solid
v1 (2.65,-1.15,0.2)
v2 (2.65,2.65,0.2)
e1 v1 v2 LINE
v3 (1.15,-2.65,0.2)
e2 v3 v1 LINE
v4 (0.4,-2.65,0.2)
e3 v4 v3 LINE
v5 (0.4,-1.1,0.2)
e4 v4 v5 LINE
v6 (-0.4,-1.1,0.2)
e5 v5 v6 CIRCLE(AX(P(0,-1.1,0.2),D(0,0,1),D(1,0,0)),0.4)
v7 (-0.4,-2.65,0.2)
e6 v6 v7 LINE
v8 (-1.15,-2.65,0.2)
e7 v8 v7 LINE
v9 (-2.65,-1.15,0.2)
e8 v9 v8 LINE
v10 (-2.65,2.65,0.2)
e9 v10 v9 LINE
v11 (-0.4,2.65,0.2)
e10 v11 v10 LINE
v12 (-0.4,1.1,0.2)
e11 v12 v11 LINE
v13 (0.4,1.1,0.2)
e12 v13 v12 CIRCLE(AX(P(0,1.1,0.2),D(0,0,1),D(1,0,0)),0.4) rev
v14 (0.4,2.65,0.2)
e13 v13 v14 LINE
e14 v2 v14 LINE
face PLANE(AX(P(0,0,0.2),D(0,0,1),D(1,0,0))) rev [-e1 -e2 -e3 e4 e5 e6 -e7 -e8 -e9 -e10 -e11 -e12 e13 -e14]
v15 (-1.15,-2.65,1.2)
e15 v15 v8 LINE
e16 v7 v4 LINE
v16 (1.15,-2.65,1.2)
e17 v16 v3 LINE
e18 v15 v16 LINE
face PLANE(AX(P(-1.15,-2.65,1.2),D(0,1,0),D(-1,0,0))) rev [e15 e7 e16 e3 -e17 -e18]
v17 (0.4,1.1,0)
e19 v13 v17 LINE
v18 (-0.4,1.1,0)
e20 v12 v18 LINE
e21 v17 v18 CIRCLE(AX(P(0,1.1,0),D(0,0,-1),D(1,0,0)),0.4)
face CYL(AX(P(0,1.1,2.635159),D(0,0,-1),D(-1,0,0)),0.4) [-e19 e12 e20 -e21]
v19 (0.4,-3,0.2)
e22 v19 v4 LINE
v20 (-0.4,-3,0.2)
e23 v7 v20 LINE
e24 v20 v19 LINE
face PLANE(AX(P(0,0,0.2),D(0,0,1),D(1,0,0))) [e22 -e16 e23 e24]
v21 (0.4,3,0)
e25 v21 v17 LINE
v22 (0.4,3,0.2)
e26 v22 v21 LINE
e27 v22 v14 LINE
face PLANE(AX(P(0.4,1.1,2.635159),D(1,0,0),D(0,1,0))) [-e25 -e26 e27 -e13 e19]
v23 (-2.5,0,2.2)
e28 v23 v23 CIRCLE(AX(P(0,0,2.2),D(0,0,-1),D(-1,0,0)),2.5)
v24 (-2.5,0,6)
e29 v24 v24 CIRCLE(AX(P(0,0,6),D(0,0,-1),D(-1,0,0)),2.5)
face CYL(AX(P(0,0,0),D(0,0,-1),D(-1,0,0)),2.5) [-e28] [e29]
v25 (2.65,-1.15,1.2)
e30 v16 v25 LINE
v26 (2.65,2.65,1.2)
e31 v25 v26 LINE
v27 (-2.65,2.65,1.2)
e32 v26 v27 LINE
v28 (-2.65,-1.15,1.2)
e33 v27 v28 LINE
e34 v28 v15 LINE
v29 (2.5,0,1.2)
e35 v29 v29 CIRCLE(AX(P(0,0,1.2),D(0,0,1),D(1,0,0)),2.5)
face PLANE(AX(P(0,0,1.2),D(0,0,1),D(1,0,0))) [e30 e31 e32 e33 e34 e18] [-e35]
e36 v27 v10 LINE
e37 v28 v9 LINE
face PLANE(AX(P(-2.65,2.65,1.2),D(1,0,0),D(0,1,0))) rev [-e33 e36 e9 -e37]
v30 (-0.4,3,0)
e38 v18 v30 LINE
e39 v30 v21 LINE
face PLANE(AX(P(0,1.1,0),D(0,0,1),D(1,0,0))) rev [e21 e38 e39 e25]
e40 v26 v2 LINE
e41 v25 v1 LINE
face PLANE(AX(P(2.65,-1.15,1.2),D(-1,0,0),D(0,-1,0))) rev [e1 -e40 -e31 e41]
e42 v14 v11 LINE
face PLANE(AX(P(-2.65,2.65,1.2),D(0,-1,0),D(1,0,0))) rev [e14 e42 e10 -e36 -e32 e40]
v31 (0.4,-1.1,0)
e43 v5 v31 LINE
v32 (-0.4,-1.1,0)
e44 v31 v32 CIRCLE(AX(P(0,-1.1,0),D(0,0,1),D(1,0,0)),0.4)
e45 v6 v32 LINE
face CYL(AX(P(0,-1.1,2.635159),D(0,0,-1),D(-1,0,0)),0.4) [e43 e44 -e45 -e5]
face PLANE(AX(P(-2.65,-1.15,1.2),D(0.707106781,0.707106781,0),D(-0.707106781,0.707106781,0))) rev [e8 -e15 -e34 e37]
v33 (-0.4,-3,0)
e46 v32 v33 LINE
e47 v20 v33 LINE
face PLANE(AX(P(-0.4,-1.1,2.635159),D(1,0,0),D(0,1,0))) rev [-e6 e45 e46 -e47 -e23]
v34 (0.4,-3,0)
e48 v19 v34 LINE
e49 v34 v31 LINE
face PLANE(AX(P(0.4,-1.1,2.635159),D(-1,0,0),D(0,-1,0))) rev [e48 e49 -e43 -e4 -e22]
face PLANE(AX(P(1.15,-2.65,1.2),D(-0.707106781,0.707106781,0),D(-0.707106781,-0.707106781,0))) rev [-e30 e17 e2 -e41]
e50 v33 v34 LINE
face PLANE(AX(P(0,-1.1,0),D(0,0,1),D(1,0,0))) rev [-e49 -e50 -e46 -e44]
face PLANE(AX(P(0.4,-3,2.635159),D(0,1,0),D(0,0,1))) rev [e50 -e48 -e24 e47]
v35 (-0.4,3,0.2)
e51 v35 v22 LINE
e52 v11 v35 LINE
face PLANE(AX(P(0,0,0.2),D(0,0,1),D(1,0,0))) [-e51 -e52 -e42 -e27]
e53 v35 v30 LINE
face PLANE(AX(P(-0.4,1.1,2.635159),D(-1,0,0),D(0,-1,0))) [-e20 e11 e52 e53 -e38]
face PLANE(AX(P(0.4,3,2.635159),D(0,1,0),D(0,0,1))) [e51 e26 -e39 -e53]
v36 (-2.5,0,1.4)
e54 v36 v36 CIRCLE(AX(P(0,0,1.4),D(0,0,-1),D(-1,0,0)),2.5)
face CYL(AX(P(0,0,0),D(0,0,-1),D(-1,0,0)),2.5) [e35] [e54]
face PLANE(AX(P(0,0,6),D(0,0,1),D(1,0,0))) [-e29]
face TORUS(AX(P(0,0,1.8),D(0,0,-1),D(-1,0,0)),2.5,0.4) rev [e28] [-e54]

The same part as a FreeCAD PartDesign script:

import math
import FreeCAD as App
import Part
import Sketcher
from FreeCAD import Vector
Q = App.Units.Quantity

doc = App.newDocument("Part")
body = doc.addObject("PartDesign::Body", "Body")

sketch1 = body.newObject("Sketcher::SketchObject", "Sketch")
sketch1.AttachmentSupport = (doc.getObject("XY_Plane"), [""])
sketch1.MapMode = "FlatFace"
sketch1.AttachmentOffset = App.Placement(Vector(0, 0, 0.2), App.Rotation())
sketch1.addGeometry(Part.LineSegment(Vector(2.65, 2.65, 0), Vector(-2.65, 2.65, 0)), False)
sketch1.addGeometry(Part.LineSegment(Vector(-2.65, 2.65, 0), Vector(-2.65, -1.15, 0)), False)
sketch1.addGeometry(Part.LineSegment(Vector(-2.65, -1.15, 0), Vector(-1.15, -2.65, 0)), False)
sketch1.addGeometry(Part.LineSegment(Vector(-1.15, -2.65, 0), Vector(1.15, -2.65, 0)), False)
sketch1.addGeometry(Part.LineSegment(Vector(1.15, -2.65, 0), Vector(2.65, -1.15, 0)), False)
sketch1.addGeometry(Part.LineSegment(Vector(2.65, -1.15, 0), Vector(2.65, 2.65, 0)), False)
sketch1.addConstraint(Sketcher.Constraint("Coincident", 0, 2, 1, 1))
sketch1.addConstraint(Sketcher.Constraint("Coincident", 1, 2, 2, 1))
sketch1.addConstraint(Sketcher.Constraint("Coincident", 2, 2, 3, 1))
sketch1.addConstraint(Sketcher.Constraint("Coincident", 3, 2, 4, 1))
sketch1.addConstraint(Sketcher.Constraint("Coincident", 4, 2, 5, 1))
sketch1.addConstraint(Sketcher.Constraint("Coincident", 5, 2, 0, 1))
sketch1.addConstraint(Sketcher.Constraint("Horizontal", 0))
sketch1.addConstraint(Sketcher.Constraint("Vertical", 1))
sketch1.addConstraint(Sketcher.Constraint("Horizontal", 3))
sketch1.addConstraint(Sketcher.Constraint("Vertical", 5))
sketch1.addConstraint(Sketcher.Constraint("Symmetric", 1, 2, 4, 2, -2))
sketch1.addConstraint(Sketcher.Constraint("Perpendicular", 2, 4))
sketch1.addConstraint(Sketcher.Constraint("Equal", 2, 4))
sketch1.addConstraint(Sketcher.Constraint("DistanceX", 0, 2, 0, 1, Q("5.3 mm")))
sketch1.addConstraint(Sketcher.Constraint("DistanceX", 3, 1, 3, 2, Q("2.3 mm")))
sketch1.addConstraint(Sketcher.Constraint("DistanceY", 1, 2, 1, 1, Q("3.8 mm")))
sketch1.addConstraint(Sketcher.Constraint("DistanceY", -1, 1, 0, 2, Q("2.65 mm")))
pad1 = body.newObject("PartDesign::Pad", "Pad")
pad1.Profile = sketch1
pad1.Length = 1

sketch2 = body.newObject("Sketcher::SketchObject", "Sketch001")
sketch2.AttachmentSupport = (doc.getObject("YZ_Plane"), [""])
sketch2.MapMode = "FlatFace"
sketch2.addGeometry(Part.LineSegment(Vector(2.5, 6, 0), Vector(0, 6, 0)), False)
sketch2.addGeometry(Part.LineSegment(Vector(0, 6, 0), Vector(0, 1.2, 0)), False)
sketch2.addGeometry(Part.LineSegment(Vector(0, 1.2, 0), Vector(2.5, 1.2, 0)), False)
sketch2.addGeometry(Part.LineSegment(Vector(2.5, 1.2, 0), Vector(2.5, 1.4, 0)), False)
sketch2.addGeometry(Part.ArcOfCircle(Part.Circle(Vector(2.5, 1.8, 0), Vector(0, 0, 1), 0.4), math.radians(90), math.radians(270)), False)
sketch2.addGeometry(Part.LineSegment(Vector(2.5, 2.2, 0), Vector(2.5, 6, 0)), False)
sketch2.addConstraint(Sketcher.Constraint("Coincident", 0, 2, 1, 1))
sketch2.addConstraint(Sketcher.Constraint("Coincident", 1, 2, 2, 1))
sketch2.addConstraint(Sketcher.Constraint("Coincident", 2, 2, 3, 1))
sketch2.addConstraint(Sketcher.Constraint("Coincident", 3, 2, 4, 2))
sketch2.addConstraint(Sketcher.Constraint("Coincident", 4, 1, 5, 1))
sketch2.addConstraint(Sketcher.Constraint("Coincident", 5, 2, 0, 1))
sketch2.addConstraint(Sketcher.Constraint("Horizontal", 0))
sketch2.addConstraint(Sketcher.Constraint("Vertical", 1))
sketch2.addConstraint(Sketcher.Constraint("Horizontal", 2))
sketch2.addConstraint(Sketcher.Constraint("Vertical", 3))
sketch2.addConstraint(Sketcher.Constraint("Vertical", 5))
sketch2.addConstraint(Sketcher.Constraint("PointOnObject", 0, 2, -2))
sketch2.addConstraint(Sketcher.Constraint("Vertical", 4, 3, 2, 2))
sketch2.addConstraint(Sketcher.Constraint("Vertical", 3, 2, 4, 1))
sketch2.addConstraint(Sketcher.Constraint("Radius", 4, Q("0.4 mm")))
sketch2.addConstraint(Sketcher.Constraint("DistanceX", 0, 2, 0, 1, Q("2.5 mm")))
sketch2.addConstraint(Sketcher.Constraint("DistanceY", 1, 2, 1, 1, Q("4.8 mm")))
sketch2.addConstraint(Sketcher.Constraint("DistanceY", 3, 1, 3, 2, Q("0.2 mm")))
sketch2.addConstraint(Sketcher.Constraint("DistanceY", -1, 1, 0, 2, Q("6 mm")))
revolution = body.newObject("PartDesign::Revolution", "Revolution")
revolution.Profile = sketch2
revolution.ReferenceAxis = (sketch2, ["V_Axis"])
revolution.Angle = 360

sketch3 = body.newObject("Sketcher::SketchObject", "Sketch002")
sketch3.AttachmentSupport = (doc.getObject("XY_Plane"), [""])
sketch3.MapMode = "FlatFace"
sketch3.addGeometry(Part.LineSegment(Vector(0.4, -3, 0), Vector(0.4, -1.1, 0)), False)
sketch3.addGeometry(Part.ArcOfCircle(Part.Circle(Vector(0, -1.1, 0), Vector(0, 0, 1), 0.4), math.radians(0), math.radians(180)), False)
sketch3.addGeometry(Part.LineSegment(Vector(-0.4, -1.1, 0), Vector(-0.4, -3, 0)), False)
sketch3.addGeometry(Part.LineSegment(Vector(-0.4, -3, 0), Vector(0.4, -3, 0)), False)
sketch3.addConstraint(Sketcher.Constraint("Tangent", 0, 2, 1, 1))
sketch3.addConstraint(Sketcher.Constraint("Tangent", 1, 2, 2, 1))
sketch3.addConstraint(Sketcher.Constraint("Coincident", 2, 2, 3, 1))
sketch3.addConstraint(Sketcher.Constraint("Coincident", 3, 2, 0, 1))
sketch3.addConstraint(Sketcher.Constraint("Vertical", 0))
sketch3.addConstraint(Sketcher.Constraint("Vertical", 2))
sketch3.addConstraint(Sketcher.Constraint("Horizontal", 3))
sketch3.addConstraint(Sketcher.Constraint("PointOnObject", 1, 3, -2))
sketch3.addConstraint(Sketcher.Constraint("Radius", 1, Q("0.4 mm")))
sketch3.addConstraint(Sketcher.Constraint("DistanceY", 0, 1, 0, 2, Q("1.9 mm")))
sketch3.addConstraint(Sketcher.Constraint("DistanceY", 2, 2, -1, 1, Q("3 mm")))
pad2 = body.newObject("PartDesign::Pad", "Pad001")
pad2.Profile = sketch3
pad2.Length = 0.2
doc.recompute()

mirrored = body.newObject("PartDesign::Mirrored", "Mirrored")
mirrored.Originals = [pad2]
mirrored.MirrorPlane = (doc.getObject("XZ_Plane"), [""])
body.Tip = mirrored

doc.recompute()
